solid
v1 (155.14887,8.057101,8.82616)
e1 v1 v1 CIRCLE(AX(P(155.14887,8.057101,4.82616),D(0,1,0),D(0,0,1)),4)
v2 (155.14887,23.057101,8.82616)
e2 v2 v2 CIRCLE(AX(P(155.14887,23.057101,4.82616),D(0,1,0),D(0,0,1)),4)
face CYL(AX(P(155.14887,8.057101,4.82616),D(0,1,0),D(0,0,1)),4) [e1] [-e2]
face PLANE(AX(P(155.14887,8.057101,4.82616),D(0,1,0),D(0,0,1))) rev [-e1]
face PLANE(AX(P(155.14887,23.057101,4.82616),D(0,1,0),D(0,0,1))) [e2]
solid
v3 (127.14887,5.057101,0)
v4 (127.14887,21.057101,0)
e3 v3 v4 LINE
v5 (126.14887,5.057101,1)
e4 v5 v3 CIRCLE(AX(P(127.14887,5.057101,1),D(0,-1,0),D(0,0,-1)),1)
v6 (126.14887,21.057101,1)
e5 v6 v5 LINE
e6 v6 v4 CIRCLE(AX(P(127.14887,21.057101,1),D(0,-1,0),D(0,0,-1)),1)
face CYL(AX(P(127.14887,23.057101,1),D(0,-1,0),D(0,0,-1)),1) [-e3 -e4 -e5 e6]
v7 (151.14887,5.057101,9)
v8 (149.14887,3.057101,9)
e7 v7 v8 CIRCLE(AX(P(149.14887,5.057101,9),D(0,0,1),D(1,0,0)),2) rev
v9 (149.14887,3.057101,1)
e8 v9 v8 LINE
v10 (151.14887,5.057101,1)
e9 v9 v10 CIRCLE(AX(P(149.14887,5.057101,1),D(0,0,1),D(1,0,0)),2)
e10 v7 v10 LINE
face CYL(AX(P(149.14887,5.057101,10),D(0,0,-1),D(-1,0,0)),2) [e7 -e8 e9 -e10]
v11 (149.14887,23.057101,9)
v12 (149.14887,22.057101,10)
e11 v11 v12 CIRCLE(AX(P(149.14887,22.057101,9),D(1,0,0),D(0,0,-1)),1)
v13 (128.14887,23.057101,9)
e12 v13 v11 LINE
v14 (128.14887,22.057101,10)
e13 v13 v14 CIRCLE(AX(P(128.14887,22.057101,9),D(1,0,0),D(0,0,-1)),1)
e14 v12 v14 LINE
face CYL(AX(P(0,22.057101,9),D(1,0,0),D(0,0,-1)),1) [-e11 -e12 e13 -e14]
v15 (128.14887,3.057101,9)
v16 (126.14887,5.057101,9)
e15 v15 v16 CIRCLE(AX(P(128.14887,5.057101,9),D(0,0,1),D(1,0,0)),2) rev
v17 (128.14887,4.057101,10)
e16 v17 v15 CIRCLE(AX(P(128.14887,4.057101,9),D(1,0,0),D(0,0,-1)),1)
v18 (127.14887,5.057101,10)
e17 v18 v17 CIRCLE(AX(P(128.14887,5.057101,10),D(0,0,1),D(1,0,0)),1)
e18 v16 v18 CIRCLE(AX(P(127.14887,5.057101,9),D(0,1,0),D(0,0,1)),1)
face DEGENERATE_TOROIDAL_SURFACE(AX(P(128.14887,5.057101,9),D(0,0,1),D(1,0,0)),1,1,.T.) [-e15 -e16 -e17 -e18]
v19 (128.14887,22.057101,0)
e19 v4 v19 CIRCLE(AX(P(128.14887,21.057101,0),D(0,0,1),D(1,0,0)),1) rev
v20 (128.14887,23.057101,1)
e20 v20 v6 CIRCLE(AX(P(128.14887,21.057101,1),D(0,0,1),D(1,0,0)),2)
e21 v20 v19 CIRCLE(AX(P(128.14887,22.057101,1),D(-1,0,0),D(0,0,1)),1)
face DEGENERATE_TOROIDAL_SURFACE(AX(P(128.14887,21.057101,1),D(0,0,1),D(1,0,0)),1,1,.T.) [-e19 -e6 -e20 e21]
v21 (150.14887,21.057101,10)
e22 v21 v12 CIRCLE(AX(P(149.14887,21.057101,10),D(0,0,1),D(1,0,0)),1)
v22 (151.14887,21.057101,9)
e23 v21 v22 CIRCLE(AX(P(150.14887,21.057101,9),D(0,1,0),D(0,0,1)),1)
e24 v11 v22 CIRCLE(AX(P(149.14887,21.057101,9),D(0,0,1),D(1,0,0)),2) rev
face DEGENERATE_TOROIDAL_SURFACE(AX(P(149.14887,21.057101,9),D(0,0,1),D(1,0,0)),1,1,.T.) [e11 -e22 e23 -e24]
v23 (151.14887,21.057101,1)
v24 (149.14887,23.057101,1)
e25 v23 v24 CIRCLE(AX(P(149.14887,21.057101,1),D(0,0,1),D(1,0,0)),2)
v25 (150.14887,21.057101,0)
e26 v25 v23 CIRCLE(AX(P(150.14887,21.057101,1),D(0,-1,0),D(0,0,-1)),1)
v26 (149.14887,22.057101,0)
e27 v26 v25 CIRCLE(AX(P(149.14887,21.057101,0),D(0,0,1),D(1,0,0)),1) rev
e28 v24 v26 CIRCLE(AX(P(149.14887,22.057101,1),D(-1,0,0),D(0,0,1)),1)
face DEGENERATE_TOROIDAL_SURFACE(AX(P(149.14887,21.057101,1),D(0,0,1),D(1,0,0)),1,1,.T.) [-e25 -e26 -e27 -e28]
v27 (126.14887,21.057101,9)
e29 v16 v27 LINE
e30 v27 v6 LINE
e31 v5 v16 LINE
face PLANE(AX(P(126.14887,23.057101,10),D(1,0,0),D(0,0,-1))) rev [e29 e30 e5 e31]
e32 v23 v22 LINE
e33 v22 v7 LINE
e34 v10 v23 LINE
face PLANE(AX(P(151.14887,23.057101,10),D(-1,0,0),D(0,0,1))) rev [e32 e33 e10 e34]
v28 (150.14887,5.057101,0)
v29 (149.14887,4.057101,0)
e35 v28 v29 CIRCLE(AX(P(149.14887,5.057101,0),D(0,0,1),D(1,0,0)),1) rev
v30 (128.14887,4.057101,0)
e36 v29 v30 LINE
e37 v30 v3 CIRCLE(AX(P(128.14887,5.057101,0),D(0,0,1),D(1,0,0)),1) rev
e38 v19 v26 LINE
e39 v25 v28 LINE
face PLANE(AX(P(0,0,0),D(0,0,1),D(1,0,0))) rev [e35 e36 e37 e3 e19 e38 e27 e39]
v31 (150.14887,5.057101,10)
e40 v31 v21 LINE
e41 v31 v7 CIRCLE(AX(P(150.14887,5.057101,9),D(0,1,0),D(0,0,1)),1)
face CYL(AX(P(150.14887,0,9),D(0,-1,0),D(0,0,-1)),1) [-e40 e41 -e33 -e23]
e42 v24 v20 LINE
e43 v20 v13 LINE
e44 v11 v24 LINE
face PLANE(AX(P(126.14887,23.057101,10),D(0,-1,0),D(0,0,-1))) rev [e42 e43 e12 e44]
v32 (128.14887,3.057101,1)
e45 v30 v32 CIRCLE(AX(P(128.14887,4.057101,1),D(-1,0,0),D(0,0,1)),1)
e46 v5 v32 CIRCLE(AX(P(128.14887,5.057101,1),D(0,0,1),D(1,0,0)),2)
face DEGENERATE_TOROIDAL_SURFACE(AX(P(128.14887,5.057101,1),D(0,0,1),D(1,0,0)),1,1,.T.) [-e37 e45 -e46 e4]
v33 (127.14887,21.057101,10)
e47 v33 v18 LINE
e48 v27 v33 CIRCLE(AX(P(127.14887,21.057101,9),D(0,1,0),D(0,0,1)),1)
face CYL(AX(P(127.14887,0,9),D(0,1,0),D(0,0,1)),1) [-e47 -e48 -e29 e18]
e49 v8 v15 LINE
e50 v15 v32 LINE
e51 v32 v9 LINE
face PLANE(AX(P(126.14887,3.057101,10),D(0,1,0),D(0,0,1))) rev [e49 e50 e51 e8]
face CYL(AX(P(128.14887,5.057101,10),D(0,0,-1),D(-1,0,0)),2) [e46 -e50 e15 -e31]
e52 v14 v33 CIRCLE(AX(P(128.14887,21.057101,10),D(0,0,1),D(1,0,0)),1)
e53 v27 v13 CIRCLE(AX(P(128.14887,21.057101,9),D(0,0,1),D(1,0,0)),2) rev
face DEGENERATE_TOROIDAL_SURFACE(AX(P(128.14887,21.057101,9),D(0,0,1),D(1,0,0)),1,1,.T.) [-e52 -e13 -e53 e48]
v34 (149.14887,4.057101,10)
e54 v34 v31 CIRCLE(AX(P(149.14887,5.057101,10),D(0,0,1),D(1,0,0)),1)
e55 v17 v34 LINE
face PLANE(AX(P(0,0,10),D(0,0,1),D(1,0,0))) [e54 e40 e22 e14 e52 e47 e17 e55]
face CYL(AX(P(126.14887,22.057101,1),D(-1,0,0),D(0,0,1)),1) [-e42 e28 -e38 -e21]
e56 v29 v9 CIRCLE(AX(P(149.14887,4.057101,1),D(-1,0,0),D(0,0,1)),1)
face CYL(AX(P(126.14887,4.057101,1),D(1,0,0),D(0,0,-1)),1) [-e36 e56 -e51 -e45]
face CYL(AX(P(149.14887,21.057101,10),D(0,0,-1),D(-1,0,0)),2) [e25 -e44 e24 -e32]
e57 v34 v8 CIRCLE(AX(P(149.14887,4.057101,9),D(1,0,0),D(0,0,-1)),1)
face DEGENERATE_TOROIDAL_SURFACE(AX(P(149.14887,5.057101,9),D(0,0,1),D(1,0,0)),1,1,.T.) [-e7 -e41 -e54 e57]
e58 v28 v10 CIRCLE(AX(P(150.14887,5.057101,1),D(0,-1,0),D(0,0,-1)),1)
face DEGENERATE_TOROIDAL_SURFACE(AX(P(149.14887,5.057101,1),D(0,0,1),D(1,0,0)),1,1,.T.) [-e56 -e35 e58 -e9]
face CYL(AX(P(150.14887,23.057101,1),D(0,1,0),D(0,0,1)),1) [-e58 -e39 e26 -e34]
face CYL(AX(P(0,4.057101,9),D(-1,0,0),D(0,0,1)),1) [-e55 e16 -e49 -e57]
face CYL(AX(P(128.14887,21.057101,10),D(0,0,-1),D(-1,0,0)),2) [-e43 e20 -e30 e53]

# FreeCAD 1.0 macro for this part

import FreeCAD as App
import Part
import Sketcher

V = App.Vector


def edges_at(feature, points):
    """Names of the edges that pass closest to the given points."""
    edges = feature.Shape.Edges
    near = lambda p: min(range(len(edges)), key=lambda i: edges[i].distToShape(Part.Vertex(*p))[0])
    return sorted({f"Edge{near(p) + 1}" for p in points})


def add_polygon(sketch, points):
    """Adds a closed chain of lines whose ends are joined by coincident constraints."""
    first, n = sketch.GeometryCount, len(points)
    for a, b in zip(points, points[1:] + points[:1]):
        sketch.addGeometry(Part.LineSegment(App.Vector(*a, 0), App.Vector(*b, 0)), False)
    for i in range(n):
        sketch.addConstraint(Sketcher.Constraint("Coincident", first + i, 2, first + (i + 1) % n, 1))

doc = App.newDocument("Part")
body = doc.addObject("PartDesign::Body", "Body")

# Sketch on XY plane
sketch1 = body.newObject("Sketcher::SketchObject", "Sketch")
sketch1.AttachmentSupport = (doc.getObject("XY_Plane"), [""])
sketch1.MapMode = "FlatFace"
add_polygon(sketch1, [(126, 23), (126, 3), (151, 3), (151, 23)])  # lines 0-3
sketch1.addConstraint([
    Sketcher.Constraint("Vertical", 0),
    Sketcher.Constraint("Horizontal", 1),
    Sketcher.Constraint("Vertical", 2),
    Sketcher.Constraint("Horizontal", 3),
    Sketcher.Constraint("DistanceX", 1, 1, 1, 2, 25.0),
    Sketcher.Constraint("DistanceY", 0, 2, 0, 1, 20.0),
    Sketcher.Constraint("DistanceY", -1, 1, 0, 2, 3.057101),
    Sketcher.Constraint("DistanceX", -1, 1, 0, 2, 126.14887),
])
pad1 = body.newObject("PartDesign::Pad", "Pad")
pad1.Profile = sketch1
pad1.Length = 10
doc.recompute()

fillet = body.newObject("PartDesign::Fillet", "Fillet")
fillet.Base = (pad1, edges_at(pad1, [
    (126.149, 23.057, 5),
    (151.149, 23.057, 5),
    (151.149, 3.057, 5),
    (126.149, 3.057, 5),
]))
fillet.Radius = 2
doc.recompute()

fillet2 = body.newObject("PartDesign::Fillet", "Fillet001")
fillet2.Base = (fillet, edges_at(fillet, [
    (126.149, 13.057, 0),
    (126.149, 13.057, 10),
    (138.649, 23.057, 0),
    (151.149, 13.057, 0),
    (138.649, 3.057, 0),
    (126.735, 3.643, 0),
    (150.563, 3.643, 0),
    (150.563, 22.471, 0),
    (126.735, 22.471, 0),
    (138.649, 23.057, 10),
    (138.649, 3.057, 10),
    (151.149, 13.057, 10),
    (126.735, 3.643, 10),
    (150.563, 3.643, 10),
    (150.563, 22.471, 10),
    (126.735, 22.471, 10),
]))
fillet2.Radius = 1
body2 = doc.addObject("PartDesign::Body", "Body001")

# Sketch on XZ plane
sketch2 = body2.newObject("Sketcher::SketchObject", "Sketch001")
sketch2.AttachmentSupport = (doc.getObject("XZ_Plane001"), [""])
sketch2.MapMode = "FlatFace"
sketch2.AttachmentOffset = App.Placement(V(0, 0, -23.057101), App.Rotation())
sketch2.addGeometry(Part.Circle(V(155.1, 4.8, 0), V(0, 0, 1), 4), False)
sketch2.addConstraint([
    Sketcher.Constraint("Diameter", 0, 8.0),
    Sketcher.Constraint("DistanceX", -1, 1, 0, 3, 155.14887),
    Sketcher.Constraint("DistanceY", -1, 1, 0, 3, 4.82616),
])
pad2 = body2.newObject("PartDesign::Pad", "Pad001")
pad2.Profile = sketch2
pad2.Length = 15

doc.recompute()
